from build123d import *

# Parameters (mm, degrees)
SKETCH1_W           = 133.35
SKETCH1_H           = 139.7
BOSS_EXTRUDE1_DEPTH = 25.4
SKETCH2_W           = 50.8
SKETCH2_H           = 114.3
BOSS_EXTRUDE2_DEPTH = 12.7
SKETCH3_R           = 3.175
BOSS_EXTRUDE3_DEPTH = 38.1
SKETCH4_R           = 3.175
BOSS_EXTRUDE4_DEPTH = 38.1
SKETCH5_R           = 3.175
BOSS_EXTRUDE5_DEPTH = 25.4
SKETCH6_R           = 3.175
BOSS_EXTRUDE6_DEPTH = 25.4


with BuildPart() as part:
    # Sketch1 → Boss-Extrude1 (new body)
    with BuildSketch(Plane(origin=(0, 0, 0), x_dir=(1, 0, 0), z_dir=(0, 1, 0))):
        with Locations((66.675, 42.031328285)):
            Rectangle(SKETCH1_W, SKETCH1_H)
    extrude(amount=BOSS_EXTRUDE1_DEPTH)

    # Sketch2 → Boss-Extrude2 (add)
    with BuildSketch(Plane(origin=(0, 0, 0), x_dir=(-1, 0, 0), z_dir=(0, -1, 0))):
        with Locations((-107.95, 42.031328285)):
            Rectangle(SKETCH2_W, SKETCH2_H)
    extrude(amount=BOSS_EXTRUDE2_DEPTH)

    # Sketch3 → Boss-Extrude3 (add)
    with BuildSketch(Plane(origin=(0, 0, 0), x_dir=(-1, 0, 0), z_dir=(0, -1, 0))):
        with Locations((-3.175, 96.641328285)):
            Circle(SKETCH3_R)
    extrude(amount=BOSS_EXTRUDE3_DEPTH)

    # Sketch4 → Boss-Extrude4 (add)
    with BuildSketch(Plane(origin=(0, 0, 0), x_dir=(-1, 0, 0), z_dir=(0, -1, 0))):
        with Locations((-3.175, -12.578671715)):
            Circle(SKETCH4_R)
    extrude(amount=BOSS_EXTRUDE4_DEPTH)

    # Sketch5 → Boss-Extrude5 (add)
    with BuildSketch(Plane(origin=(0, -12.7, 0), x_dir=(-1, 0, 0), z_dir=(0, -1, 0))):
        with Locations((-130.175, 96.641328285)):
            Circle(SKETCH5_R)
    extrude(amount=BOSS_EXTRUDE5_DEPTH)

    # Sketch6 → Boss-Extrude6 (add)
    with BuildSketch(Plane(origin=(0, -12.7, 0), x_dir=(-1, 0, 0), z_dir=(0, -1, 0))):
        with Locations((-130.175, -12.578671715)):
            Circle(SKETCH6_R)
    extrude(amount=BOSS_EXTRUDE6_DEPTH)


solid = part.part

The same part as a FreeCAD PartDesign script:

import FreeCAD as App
import Part
import Sketcher
from FreeCAD import Vector
Q = App.Units.Quantity

doc = App.newDocument("Part")
body = doc.addObject("PartDesign::Body", "Body")

# Sketch on XZ plane
sketch1 = body.newObject("Sketcher::SketchObject", "Sketch")
sketch1.AttachmentSupport = (doc.getObject("XZ_Plane"), [""])
sketch1.MapMode = "FlatFace"
sketch1.addGeometry([
    Part.LineSegment(Vector(0, -112, 0), Vector(0, 28, 0)),
    Part.LineSegment(Vector(0, 28, 0), Vector(133, 28, 0)),
    Part.LineSegment(Vector(133, 28, 0), Vector(133, -112, 0)),
    Part.LineSegment(Vector(133, -112, 0), Vector(0, -112, 0)),
], False)
sketch1.addConstraint([
    Sketcher.Constraint("Coincident", 0, 2, 1, 1),
    Sketcher.Constraint("Coincident", 1, 2, 2, 1),
    Sketcher.Constraint("Coincident", 2, 2, 3, 1),
    Sketcher.Constraint("Coincident", 3, 2, 0, 1),
    Sketcher.Constraint("Vertical", 0),
    Sketcher.Constraint("Horizontal", 1),
    Sketcher.Constraint("Vertical", 2),
    Sketcher.Constraint("Horizontal", 3),
    Sketcher.Constraint("PointOnObject", 0, 2, -2),
    Sketcher.Constraint("DistanceY", 0, 1, 0, 2, Q("5.5 in")),
    Sketcher.Constraint("DistanceX", 1, 1, 1, 2, Q("5.25 in")),
    Sketcher.Constraint("DistanceY", -1, 1, 0, 2, 27.818672),
])
pad1 = body.newObject("PartDesign::Pad", "Pad")
pad1.Profile = sketch1
pad1.Length = Q("1 in")
pad1.Reversed = True

# Sketch on XZ plane
sketch2 = body.newObject("Sketcher::SketchObject", "Sketch001")
sketch2.AttachmentSupport = (doc.getObject("XZ_Plane"), [""])
sketch2.MapMode = "FlatFace"
sketch2.addGeometry([
    Part.LineSegment(Vector(133, -99, 0), Vector(133, 15, 0)),
    Part.LineSegment(Vector(133, 15, 0), Vector(83, 15, 0)),
    Part.LineSegment(Vector(83, 15, 0), Vector(83, -99, 0)),
    Part.LineSegment(Vector(83, -99, 0), Vector(133, -99, 0)),
], False)
sketch2.addConstraint([
    Sketcher.Constraint("Coincident", 0, 2, 1, 1),
    Sketcher.Constraint("Coincident", 1, 2, 2, 1),
    Sketcher.Constraint("Coincident", 2, 2, 3, 1),
    Sketcher.Constraint("Coincident", 3, 2, 0, 1),
    Sketcher.Constraint("Vertical", 0),
    Sketcher.Constraint("Horizontal", 1),
    Sketcher.Constraint("Vertical", 2),
    Sketcher.Constraint("Horizontal", 3),
    Sketcher.Constraint("DistanceX", 1, 2, 1, 1, Q("2 in")),
    Sketcher.Constraint("DistanceY", 0, 1, 0, 2, Q("4.5 in")),
    Sketcher.Constraint("DistanceX", -1, 1, 0, 2, Q("5.25 in")),
    Sketcher.Constraint("DistanceY", -1, 1, 0, 2, 15.118672),
])
pad2 = body.newObject("PartDesign::Pad", "Pad001")
pad2.Profile = sketch2
pad2.Length = Q("0.5 in")

# Sketch on XZ plane
sketch3 = body.newObject("Sketcher::SketchObject", "Sketch002")
sketch3.AttachmentSupport = (doc.getObject("XZ_Plane"), [""])
sketch3.MapMode = "FlatFace"
sketch3.addGeometry(Part.Circle(Vector(3.2, -96.6, 0), Vector(0, 0, 1), 3.2), False)
sketch3.addConstraint([
    Sketcher.Constraint("Diameter", 0, Q("0.25 in")),
    Sketcher.Constraint("DistanceX", -1, 1, 0, 3, Q("0.125 in")),
    Sketcher.Constraint("DistanceY", 0, 3, -1, 1, 96.641328),
])
pad3 = body.newObject("PartDesign::Pad", "Pad002")
pad3.Profile = sketch3
pad3.Length = Q("1.5 in")

# Sketch on XZ plane
sketch4 = body.newObject("Sketcher::SketchObject", "Sketch003")
sketch4.AttachmentSupport = (doc.getObject("XZ_Plane"), [""])
sketch4.MapMode = "FlatFace"
sketch4.addGeometry(Part.Circle(Vector(3.2, 12.6, 0), Vector(0, 0, 1), 3.2), False)
sketch4.addConstraint([
    Sketcher.Constraint("Diameter", 0, Q("0.25 in")),
    Sketcher.Constraint("DistanceX", -1, 1, 0, 3, Q("0.125 in")),
    Sketcher.Constraint("DistanceY", -1, 1, 0, 3, 12.578672),
])
pad4 = body.newObject("PartDesign::Pad", "Pad003")
pad4.Profile = sketch4
pad4.Length = Q("1.5 in")

# Sketch on XZ plane
sketch5 = body.newObject("Sketcher::SketchObject", "Sketch004")
sketch5.AttachmentSupport = (doc.getObject("XZ_Plane"), [""])
sketch5.MapMode = "FlatFace"
sketch5.AttachmentOffset = App.Placement(Vector(0, 0, 0.5 * 25.4), App.Rotation())
sketch5.addGeometry(Part.Circle(Vector(130.2, -96.6, 0), Vector(0, 0, 1), 3.2), False)
sketch5.addConstraint([
    Sketcher.Constraint("Diameter", 0, Q("0.25 in")),
    Sketcher.Constraint("DistanceX", -1, 1, 0, 3, Q("5.125 in")),
    Sketcher.Constraint("DistanceY", 0, 3, -1, 1, 96.641328),
])
pad5 = body.newObject("PartDesign::Pad", "Pad004")
pad5.Profile = sketch5
pad5.Length = Q("1 in")

# Sketch on XZ plane
sketch6 = body.newObject("Sketcher::SketchObject", "Sketch005")
sketch6.AttachmentSupport = (doc.getObject("XZ_Plane"), [""])
sketch6.MapMode = "FlatFace"
sketch6.AttachmentOffset = App.Placement(Vector(0, 0, 0.5 * 25.4), App.Rotation())
sketch6.addGeometry(Part.Circle(Vector(130.2, 12.6, 0), Vector(0, 0, 1), 3.2), False)
sketch6.addConstraint([
    Sketcher.Constraint("Diameter", 0, Q("0.25 in")),
    Sketcher.Constraint("DistanceX", -1, 1, 0, 3, Q("5.125 in")),
    Sketcher.Constraint("DistanceY", -1, 1, 0, 3, 12.578672),
])
pad6 = body.newObject("PartDesign::Pad", "Pad005")
pad6.Profile = sketch6
pad6.Length = Q("1 in")

doc.recompute()
